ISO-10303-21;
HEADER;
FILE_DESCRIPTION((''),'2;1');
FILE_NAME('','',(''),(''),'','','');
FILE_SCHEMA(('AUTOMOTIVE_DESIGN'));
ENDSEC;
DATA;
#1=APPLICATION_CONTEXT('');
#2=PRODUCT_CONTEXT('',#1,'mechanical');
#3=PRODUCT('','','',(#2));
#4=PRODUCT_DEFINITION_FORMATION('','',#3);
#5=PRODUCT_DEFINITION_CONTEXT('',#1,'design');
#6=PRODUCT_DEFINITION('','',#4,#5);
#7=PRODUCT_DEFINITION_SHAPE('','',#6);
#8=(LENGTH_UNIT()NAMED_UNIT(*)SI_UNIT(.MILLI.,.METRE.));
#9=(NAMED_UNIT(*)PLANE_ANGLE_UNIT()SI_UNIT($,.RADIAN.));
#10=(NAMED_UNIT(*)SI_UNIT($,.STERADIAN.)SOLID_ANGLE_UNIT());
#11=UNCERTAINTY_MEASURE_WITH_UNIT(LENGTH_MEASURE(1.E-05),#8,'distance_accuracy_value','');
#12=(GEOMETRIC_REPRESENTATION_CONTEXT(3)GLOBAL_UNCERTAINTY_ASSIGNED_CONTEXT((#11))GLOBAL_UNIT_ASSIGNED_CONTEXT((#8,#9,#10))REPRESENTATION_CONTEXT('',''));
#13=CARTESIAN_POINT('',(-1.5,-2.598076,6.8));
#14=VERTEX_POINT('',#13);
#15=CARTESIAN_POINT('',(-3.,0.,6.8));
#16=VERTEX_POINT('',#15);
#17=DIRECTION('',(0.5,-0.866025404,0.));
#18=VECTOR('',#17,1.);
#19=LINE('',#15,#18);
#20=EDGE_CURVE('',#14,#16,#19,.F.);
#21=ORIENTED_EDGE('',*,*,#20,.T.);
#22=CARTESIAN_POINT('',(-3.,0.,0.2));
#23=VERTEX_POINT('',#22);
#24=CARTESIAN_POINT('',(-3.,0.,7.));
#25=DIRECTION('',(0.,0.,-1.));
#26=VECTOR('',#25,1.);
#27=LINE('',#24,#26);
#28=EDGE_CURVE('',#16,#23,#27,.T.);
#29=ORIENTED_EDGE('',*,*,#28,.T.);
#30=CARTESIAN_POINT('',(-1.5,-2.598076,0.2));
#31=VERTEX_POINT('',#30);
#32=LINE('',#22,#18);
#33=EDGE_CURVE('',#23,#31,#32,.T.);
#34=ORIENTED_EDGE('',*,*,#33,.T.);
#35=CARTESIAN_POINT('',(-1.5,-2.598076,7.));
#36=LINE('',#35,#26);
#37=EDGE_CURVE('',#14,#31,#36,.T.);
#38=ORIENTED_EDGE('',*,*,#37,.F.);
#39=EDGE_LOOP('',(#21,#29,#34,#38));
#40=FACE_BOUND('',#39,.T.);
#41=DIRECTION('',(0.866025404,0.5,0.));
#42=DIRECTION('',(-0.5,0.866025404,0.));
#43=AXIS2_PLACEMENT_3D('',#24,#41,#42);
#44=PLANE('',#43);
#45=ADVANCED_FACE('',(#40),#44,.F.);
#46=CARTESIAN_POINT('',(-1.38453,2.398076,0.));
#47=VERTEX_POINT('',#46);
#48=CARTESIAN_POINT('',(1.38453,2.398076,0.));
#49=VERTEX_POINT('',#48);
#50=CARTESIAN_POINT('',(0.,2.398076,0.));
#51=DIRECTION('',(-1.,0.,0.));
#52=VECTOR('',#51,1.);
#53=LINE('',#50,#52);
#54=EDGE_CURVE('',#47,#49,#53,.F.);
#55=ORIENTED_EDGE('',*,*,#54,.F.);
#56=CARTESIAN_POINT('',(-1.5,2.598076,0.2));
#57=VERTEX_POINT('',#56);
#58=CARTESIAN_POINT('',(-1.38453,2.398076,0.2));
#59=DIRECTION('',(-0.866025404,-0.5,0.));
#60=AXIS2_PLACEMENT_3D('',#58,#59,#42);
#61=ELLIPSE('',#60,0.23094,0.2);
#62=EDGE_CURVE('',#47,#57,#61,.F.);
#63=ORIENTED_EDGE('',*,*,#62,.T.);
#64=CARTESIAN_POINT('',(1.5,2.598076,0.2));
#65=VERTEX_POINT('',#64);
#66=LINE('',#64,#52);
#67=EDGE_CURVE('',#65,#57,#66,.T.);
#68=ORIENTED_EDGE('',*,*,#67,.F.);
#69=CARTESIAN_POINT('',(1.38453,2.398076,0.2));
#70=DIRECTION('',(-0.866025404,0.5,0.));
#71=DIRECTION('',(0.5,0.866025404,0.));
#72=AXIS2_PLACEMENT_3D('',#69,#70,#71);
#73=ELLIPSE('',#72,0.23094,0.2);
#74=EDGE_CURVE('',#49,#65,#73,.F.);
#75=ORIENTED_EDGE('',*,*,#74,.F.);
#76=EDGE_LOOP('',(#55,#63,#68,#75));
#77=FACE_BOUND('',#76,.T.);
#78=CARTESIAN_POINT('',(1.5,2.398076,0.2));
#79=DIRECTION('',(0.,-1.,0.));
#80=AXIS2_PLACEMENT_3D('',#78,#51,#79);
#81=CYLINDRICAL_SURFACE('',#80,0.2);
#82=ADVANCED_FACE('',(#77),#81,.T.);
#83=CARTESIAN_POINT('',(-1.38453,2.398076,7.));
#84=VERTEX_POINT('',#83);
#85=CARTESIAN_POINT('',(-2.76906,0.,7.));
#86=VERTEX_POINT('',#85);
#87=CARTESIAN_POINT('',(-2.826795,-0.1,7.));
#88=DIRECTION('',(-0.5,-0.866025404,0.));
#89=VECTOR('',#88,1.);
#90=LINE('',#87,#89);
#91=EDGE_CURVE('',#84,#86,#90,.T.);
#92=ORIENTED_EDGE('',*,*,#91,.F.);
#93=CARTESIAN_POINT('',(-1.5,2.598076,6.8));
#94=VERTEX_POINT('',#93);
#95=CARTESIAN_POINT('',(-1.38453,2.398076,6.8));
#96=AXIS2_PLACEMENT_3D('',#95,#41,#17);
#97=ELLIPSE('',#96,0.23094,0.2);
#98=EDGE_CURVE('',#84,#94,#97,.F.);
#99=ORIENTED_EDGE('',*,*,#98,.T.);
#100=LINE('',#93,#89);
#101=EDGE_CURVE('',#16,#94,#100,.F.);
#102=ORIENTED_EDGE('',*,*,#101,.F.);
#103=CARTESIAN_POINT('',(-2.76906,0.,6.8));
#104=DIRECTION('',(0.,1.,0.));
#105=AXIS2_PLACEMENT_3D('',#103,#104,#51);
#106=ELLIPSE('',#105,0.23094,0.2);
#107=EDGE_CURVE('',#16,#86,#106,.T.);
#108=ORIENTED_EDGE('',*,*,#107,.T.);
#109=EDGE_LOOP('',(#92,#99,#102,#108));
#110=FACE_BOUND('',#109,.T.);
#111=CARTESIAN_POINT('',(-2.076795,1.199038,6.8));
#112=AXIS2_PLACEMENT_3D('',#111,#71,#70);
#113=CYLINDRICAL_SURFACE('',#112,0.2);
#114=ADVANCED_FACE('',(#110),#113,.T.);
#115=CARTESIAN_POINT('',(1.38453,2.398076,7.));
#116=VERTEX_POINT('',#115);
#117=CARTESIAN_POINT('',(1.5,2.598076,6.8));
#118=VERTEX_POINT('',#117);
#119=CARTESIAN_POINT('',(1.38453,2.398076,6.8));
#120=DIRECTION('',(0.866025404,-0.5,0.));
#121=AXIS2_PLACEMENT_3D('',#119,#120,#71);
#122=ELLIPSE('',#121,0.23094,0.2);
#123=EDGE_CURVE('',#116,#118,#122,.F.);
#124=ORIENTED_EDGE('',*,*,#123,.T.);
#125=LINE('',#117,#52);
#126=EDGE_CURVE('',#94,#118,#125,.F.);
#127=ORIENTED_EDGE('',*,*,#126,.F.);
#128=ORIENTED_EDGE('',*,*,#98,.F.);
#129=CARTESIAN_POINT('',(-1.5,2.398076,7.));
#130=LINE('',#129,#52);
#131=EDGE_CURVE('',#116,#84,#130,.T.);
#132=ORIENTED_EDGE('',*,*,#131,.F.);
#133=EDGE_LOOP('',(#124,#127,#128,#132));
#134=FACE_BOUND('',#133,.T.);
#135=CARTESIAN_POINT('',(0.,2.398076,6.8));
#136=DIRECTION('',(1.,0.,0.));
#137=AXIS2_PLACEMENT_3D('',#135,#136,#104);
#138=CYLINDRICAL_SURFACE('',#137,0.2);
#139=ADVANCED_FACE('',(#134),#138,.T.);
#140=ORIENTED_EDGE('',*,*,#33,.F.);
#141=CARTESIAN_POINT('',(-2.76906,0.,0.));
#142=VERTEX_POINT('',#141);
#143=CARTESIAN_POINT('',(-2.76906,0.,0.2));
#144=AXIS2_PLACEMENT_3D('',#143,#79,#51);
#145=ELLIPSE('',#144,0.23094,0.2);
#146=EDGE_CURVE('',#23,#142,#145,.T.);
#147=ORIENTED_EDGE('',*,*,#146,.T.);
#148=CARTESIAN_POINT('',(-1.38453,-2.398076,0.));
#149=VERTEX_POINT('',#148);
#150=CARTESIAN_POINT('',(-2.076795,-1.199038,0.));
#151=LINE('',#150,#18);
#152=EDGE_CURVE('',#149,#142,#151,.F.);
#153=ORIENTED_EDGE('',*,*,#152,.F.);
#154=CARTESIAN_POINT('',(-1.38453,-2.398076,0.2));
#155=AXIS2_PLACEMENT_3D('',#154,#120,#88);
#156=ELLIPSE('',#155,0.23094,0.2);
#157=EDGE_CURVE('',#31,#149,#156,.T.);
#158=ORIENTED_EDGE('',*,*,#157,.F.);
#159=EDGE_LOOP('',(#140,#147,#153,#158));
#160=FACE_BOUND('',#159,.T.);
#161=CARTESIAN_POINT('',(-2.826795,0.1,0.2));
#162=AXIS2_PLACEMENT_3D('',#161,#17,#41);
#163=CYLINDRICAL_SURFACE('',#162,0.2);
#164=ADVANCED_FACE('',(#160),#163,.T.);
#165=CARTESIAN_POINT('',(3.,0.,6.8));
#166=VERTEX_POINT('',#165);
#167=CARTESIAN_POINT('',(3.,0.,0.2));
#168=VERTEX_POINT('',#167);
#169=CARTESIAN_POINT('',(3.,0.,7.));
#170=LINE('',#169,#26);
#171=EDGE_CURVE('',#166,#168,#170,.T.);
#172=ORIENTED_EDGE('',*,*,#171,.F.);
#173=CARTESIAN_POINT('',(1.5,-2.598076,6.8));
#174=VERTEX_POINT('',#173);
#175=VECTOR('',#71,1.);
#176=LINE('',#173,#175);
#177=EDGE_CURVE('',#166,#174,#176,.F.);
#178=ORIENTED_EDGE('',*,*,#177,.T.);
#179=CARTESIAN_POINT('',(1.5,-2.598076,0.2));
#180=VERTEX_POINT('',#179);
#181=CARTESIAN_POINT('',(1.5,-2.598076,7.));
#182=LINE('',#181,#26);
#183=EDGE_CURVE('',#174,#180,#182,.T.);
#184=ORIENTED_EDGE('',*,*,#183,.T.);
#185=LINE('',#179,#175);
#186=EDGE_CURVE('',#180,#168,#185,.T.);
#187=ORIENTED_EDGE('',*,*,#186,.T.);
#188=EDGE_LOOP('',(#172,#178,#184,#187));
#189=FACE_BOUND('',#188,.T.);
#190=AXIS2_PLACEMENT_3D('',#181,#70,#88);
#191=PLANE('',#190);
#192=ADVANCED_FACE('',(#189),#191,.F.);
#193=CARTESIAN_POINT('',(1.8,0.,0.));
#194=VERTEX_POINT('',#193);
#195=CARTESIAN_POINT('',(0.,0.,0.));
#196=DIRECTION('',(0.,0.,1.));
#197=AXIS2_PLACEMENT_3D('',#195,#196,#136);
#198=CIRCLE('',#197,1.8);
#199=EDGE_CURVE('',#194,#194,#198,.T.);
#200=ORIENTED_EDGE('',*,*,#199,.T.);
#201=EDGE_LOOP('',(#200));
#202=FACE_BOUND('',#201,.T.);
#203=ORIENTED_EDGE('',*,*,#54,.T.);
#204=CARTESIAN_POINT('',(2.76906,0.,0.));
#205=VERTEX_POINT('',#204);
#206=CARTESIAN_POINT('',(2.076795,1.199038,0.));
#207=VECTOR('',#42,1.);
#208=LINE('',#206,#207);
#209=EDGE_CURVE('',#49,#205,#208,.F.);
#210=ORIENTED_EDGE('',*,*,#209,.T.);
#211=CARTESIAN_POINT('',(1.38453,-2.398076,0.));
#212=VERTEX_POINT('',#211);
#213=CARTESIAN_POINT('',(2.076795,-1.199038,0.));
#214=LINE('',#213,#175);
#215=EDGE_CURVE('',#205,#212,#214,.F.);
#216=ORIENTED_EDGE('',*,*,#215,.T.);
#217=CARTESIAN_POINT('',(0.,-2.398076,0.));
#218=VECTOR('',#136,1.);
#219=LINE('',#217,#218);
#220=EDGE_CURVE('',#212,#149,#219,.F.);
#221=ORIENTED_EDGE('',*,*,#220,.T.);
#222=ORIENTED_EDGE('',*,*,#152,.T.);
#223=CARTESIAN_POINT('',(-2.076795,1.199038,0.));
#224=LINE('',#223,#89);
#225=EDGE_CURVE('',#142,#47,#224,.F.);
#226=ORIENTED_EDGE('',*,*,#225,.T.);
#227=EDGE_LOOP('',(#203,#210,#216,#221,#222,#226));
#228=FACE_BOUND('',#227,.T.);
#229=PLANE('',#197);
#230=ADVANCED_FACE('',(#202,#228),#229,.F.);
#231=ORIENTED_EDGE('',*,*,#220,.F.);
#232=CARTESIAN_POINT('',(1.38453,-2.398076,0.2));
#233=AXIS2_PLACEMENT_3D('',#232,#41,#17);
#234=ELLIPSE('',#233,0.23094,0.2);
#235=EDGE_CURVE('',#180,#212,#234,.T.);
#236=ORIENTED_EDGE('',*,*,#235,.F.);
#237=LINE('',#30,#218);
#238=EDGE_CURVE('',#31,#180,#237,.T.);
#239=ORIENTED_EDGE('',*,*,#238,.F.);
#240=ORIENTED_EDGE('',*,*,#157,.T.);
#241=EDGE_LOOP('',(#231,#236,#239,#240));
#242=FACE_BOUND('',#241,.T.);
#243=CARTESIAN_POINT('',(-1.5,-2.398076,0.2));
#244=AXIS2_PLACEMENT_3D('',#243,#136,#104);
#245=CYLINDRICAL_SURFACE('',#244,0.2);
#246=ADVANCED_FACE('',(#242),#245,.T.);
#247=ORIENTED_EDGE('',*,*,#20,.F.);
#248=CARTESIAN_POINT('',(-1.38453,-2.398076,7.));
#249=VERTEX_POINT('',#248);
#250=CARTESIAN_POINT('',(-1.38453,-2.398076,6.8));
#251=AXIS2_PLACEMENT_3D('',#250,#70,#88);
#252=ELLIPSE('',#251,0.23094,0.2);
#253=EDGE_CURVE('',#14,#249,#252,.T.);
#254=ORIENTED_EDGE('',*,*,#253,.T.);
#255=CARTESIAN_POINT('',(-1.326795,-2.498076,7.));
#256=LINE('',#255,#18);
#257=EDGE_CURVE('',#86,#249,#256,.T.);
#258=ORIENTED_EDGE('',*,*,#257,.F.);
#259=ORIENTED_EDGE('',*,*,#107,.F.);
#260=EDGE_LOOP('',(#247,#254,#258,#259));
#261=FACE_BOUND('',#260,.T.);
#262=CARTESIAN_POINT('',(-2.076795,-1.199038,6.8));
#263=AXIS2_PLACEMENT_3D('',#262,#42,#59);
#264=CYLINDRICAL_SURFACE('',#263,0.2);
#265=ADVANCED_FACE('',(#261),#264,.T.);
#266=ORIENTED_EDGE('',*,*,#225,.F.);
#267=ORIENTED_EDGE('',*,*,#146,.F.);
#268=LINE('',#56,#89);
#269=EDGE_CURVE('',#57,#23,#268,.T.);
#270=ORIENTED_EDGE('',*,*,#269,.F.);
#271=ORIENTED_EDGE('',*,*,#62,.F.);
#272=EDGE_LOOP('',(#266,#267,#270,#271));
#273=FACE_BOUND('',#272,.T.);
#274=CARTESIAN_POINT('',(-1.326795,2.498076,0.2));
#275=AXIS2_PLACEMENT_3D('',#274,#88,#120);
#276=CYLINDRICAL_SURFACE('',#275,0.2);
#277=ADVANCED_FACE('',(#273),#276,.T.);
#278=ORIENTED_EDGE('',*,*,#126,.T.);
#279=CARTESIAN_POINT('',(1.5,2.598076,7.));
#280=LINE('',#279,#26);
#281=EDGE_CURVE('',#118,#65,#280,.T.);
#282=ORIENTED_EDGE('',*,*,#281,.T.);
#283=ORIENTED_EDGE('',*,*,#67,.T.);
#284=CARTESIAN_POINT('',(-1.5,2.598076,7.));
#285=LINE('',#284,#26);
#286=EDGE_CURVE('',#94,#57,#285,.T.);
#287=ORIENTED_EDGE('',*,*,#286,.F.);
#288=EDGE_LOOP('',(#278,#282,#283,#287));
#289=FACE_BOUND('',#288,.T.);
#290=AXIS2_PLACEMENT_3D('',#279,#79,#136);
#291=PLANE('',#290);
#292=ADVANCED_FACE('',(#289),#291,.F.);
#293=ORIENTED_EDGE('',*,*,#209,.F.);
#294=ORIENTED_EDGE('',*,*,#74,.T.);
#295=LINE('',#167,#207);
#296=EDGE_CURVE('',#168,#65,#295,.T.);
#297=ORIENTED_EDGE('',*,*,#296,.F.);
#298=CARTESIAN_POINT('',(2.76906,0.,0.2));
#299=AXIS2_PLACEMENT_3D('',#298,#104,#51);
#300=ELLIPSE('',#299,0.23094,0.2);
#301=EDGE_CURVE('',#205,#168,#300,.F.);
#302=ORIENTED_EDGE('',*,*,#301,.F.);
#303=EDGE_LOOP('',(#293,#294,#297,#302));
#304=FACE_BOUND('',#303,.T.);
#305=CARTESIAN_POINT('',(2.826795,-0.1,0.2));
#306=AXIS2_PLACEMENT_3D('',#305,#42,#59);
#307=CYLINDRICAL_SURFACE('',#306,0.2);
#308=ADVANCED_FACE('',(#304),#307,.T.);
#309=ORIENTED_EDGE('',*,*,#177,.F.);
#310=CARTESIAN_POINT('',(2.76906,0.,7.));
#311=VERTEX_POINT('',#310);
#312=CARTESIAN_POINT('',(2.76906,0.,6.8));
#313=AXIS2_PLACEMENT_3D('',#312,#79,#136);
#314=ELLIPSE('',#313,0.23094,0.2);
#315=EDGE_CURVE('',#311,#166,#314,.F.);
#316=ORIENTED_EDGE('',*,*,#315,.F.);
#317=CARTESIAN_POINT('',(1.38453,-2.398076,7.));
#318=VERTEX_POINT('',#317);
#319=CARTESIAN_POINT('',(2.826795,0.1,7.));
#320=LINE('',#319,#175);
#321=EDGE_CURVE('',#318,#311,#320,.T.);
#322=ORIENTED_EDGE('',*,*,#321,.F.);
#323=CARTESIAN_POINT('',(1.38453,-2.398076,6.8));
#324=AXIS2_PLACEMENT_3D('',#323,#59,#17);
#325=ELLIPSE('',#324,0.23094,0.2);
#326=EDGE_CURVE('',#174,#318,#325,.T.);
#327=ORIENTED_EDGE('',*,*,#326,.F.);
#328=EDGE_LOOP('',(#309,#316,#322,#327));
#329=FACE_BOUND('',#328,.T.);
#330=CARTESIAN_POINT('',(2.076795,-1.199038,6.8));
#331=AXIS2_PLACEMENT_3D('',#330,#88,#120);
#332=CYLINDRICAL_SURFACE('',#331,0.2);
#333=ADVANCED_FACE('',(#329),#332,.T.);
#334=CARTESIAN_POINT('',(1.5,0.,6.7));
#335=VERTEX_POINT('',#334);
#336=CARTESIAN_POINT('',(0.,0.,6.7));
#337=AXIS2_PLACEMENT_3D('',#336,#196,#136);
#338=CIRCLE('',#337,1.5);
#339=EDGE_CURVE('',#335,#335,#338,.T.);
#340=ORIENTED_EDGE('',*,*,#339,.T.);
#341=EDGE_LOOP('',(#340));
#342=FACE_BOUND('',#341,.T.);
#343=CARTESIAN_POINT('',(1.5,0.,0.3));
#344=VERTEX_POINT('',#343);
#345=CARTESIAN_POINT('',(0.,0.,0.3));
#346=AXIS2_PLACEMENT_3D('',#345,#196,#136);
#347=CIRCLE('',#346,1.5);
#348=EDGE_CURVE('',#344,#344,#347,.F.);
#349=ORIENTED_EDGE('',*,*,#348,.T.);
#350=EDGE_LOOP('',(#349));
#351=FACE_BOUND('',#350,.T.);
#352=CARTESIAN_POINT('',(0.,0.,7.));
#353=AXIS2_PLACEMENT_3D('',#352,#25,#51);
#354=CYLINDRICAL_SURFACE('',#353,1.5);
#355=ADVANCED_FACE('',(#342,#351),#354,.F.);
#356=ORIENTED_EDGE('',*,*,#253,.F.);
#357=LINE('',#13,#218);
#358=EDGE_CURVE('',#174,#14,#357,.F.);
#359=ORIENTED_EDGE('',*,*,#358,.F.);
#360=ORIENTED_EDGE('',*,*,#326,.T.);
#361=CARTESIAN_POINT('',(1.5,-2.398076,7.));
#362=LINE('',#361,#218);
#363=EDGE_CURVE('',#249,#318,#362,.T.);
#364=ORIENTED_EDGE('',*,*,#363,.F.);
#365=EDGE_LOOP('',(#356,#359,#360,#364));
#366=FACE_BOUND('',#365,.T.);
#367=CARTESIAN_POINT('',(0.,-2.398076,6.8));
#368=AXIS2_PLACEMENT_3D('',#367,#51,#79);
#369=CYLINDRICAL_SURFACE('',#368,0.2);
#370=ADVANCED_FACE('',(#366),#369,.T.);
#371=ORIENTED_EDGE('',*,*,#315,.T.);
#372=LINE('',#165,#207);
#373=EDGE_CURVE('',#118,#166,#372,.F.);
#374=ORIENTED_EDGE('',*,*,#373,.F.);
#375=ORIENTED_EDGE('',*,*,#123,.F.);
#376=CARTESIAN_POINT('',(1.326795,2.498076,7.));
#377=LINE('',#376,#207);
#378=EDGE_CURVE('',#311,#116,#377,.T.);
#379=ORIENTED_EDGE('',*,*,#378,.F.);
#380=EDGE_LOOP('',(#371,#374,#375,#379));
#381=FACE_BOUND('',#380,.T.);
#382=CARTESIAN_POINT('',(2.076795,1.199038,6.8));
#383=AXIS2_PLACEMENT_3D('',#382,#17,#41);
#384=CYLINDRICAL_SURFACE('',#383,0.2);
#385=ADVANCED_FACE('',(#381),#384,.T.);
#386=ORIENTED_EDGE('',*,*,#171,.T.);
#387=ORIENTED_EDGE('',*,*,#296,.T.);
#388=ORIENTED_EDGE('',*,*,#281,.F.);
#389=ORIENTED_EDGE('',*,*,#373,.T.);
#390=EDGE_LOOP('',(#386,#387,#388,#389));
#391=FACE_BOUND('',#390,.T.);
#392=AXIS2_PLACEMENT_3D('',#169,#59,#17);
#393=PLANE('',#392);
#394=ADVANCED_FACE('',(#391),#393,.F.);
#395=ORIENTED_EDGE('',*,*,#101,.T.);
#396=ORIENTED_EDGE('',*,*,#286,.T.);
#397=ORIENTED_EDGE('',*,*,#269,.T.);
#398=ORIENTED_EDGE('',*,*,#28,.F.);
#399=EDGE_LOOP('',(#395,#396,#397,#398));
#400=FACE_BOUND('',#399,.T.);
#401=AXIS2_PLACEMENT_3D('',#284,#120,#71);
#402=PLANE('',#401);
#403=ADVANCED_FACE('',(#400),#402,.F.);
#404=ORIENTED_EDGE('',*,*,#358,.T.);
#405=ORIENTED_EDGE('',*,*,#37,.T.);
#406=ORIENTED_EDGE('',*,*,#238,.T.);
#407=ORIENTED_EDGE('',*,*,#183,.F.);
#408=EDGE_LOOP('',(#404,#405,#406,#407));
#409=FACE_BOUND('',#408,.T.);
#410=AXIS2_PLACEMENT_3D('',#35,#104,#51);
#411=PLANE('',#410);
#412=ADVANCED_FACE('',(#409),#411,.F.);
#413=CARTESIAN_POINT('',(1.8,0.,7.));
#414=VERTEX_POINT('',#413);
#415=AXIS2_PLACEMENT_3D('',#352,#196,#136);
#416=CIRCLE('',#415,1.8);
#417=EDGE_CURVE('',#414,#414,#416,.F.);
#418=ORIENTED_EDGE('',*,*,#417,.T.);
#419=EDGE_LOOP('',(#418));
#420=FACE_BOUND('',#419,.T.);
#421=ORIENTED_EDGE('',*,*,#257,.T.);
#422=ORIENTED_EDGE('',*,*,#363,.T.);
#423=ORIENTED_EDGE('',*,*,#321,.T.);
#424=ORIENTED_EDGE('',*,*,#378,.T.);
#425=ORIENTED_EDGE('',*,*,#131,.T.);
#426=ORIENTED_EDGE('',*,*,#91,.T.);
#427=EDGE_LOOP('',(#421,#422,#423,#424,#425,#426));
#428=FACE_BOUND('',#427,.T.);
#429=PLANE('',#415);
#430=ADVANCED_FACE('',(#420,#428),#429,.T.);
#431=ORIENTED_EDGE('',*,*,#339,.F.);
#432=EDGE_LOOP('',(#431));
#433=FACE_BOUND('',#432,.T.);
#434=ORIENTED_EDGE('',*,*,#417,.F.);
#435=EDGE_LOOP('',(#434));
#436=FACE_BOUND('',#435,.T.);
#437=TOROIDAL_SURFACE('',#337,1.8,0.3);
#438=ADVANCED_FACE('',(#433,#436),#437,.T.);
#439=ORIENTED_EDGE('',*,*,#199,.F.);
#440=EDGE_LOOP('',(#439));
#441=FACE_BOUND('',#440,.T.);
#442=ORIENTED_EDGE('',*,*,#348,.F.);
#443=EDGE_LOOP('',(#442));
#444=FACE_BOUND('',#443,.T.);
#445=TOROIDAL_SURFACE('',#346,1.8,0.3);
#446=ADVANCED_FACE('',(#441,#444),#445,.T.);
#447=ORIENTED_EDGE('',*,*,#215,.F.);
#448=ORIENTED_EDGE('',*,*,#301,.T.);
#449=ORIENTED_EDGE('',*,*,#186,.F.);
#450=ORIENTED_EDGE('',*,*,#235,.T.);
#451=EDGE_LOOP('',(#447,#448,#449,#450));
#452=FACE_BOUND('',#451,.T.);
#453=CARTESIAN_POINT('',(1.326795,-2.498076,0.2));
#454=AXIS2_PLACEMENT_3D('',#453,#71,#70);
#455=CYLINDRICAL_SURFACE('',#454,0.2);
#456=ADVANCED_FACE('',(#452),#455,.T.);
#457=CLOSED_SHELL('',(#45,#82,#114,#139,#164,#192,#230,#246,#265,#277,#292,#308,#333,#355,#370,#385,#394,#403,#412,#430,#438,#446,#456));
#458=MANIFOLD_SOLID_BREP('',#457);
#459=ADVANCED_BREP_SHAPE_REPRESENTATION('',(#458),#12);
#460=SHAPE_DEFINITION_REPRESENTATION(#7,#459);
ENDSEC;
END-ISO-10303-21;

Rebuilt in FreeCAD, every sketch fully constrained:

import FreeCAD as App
import Part
import Sketcher
Q = App.Units.Quantity


def edges_at(feature, points):
    """Names of the edges that pass closest to the given points."""
    edges = feature.Shape.Edges
    near = lambda p: min(range(len(edges)), key=lambda i: edges[i].distToShape(Part.Vertex(*p))[0])
    return sorted({f"Edge{near(p) + 1}" for p in points})


def add_polygon(sketch, points):
    """Adds a closed chain of lines whose ends are joined by coincident constraints."""
    first, n = sketch.GeometryCount, len(points)
    for a, b in zip(points, points[1:] + points[:1]):
        sketch.addGeometry(Part.LineSegment(App.Vector(*a, 0), App.Vector(*b, 0)), False)
    for i in range(n):
        sketch.addConstraint(Sketcher.Constraint("Coincident", first + i, 2, first + (i + 1) % n, 1))

doc = App.newDocument("Part")
params = doc.addObject("Spreadsheet::Sheet", "Params")
for row, (alias, value) in enumerate([
    ("sketch1_diameter", "3 mm"),
    ("sketch1_width", "3 mm"),
    ("sketch1_length", "3 mm"),
    ("pad1_length", "7 mm"),
    ("fillet_radius", "0.3 mm"),
    ("fillet2_radius", "0.2 mm"),
], start=1):
    params.set(f"A{row}", alias)
    params.set(f"B{row}", "=" + value)
    params.setAlias(f"B{row}", alias)

body = doc.addObject("PartDesign::Body", "Body")

sketch1 = doc.addObject("Sketcher::SketchObject", "Sketch")
body.addObject(sketch1)
sketch1.AttachmentSupport = (doc.XY_Plane, [""])
sketch1.MapMode = "FlatFace"
add_polygon(sketch1, [(3, 0), (1.5, 2.598076), (-1.5, 2.598076), (-3, 0), (-1.5, -2.598076), (1.5, -2.598076)])
sketch1.addGeometry(Part.Circle(App.Vector(0, 0, 0), App.Vector(0, 0, 1), 1.5), False)
sketch1.addConstraint(Sketcher.Constraint("Horizontal", 1))
sketch1.addConstraint(Sketcher.Constraint("Horizontal", 4))
sketch1.addConstraint(Sketcher.Constraint("Coincident", 6, 3, -1, 1))
sketch1.addConstraint(Sketcher.Constraint("Symmetric", 0, 2, 3, 2, -1, 1))
sketch1.addConstraint(Sketcher.Constraint("Symmetric", 2, 2, 5, 2, -1, 1))
sketch1.addConstraint(Sketcher.Constraint("PointOnObject", 2, 2, -1))
sketch1.addConstraint(Sketcher.Constraint("Parallel", 2, 5))
sketch1.addConstraint(Sketcher.Constraint("Vertical", 1, 2, 3, 2))
sketch1.addConstraint(Sketcher.Constraint("Diameter", 6, Q("3 mm")))
sketch1.addConstraint(Sketcher.Constraint("DistanceX", 1, 2, 1, 1, Q("3 mm")))
sketch1.addConstraint(Sketcher.Constraint("Angle", 0, Q("120 deg")))
sketch1.addConstraint(Sketcher.Constraint("Distance", 0, Q("3 mm")))
sketch1.setExpression("Constraints[14]", "Params.sketch1_diameter")
sketch1.setExpression("Constraints[15]", "Params.sketch1_width")
sketch1.setExpression("Constraints[17]", "Params.sketch1_length")
pad1 = doc.addObject("PartDesign::Pad", "Pad")
body.addObject(pad1)
pad1.Profile = sketch1
pad1.setExpression("Length", "Params.pad1_length")
doc.recompute()

fillet = doc.addObject("PartDesign::Fillet", "Fillet")
body.addObject(fillet)
fillet.Base = (pad1, edges_at(pad1, [(-1.5, 0, 0), (-1.5, 0, 7)]))
fillet.setExpression("Radius", "Params.fillet_radius")
doc.recompute()

fillet2 = doc.addObject("PartDesign::Fillet", "Fillet001")
body.addObject(fillet2)
fillet2.Base = (fillet, edges_at(fillet, [
    (0, 2.598, 7),
    (-2.25, 1.299, 7),
    (-2.25, -1.299, 7),
    (0, -2.598, 7),
    (2.25, -1.299, 7),
    (0, -2.598, 0),
    (-2.25, -1.299, 0),
    (-2.25, 1.299, 0),
    (2.25, 1.299, 7),
    (0, 2.598, 0),
    (2.25, 1.299, 0),
    (2.25, -1.299, 0),
]))
fillet2.setExpression("Radius", "Params.fillet2_radius")

doc.recompute()
